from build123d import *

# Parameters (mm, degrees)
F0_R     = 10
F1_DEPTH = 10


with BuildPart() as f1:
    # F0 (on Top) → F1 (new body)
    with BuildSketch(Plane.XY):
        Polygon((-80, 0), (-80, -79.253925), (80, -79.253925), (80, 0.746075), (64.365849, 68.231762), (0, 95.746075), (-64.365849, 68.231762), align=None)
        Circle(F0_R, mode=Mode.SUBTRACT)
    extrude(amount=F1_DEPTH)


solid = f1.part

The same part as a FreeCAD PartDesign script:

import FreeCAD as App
import Part
import Sketcher

V = App.Vector


def add_polygon(sketch, points):
    """Adds a closed chain of lines whose ends are joined by coincident constraints."""
    first, n = sketch.GeometryCount, len(points)
    for a, b in zip(points, points[1:] + points[:1]):
        sketch.addGeometry(Part.LineSegment(App.Vector(*a, 0), App.Vector(*b, 0)), False)
    for i in range(n):
        sketch.addConstraint(Sketcher.Constraint("Coincident", first + i, 2, first + (i + 1) % n, 1))

doc = App.newDocument("Part")
params = doc.addObject("Spreadsheet::Sheet", "Params")
for row, (alias, value) in enumerate([
    ("sketch1_diameter", "20 mm"),
    ("sketch1_width", "160 mm"),
    ("sketch1_height", "80 mm"),
    ("sketch1_length", "70 mm"),
    ("pad1_length", "10 mm"),
], start=1):
    params.set(f"A{row}", alias)
    params.set(f"B{row}", "=" + value)
    params.setAlias(f"B{row}", alias)

body = doc.addObject("PartDesign::Body", "Body")

# Sketch on XY plane
sketch1 = body.newObject("Sketcher::SketchObject", "Sketch")
sketch1.AttachmentSupport = (doc.getObject("XY_Plane"), [""])
sketch1.MapMode = "FlatFace"
add_polygon(sketch1, [(-80, 0), (-80, -79), (80, -79), (80, 1), (64, 68), (0, 96), (-64, 68)])  # lines 0-6
sketch1.addGeometry(Part.Circle(V(0, 0, 0), V(0, 0, 1), 10), False)  # 7
sketch1.addConstraint([
    Sketcher.Constraint("Vertical", 0),
    Sketcher.Constraint("Horizontal", 1),
    Sketcher.Constraint("Vertical", 2),
    Sketcher.Constraint("Coincident", 7, 3, -1, 1),
    Sketcher.Constraint("Symmetric", 3, 2, 5, 2, -2),
    Sketcher.Constraint("PointOnObject", 4, 2, -2),
    Sketcher.Constraint("PointOnObject", 6, 2, -1),
    Sketcher.Constraint("Equal", 5, 6),
    Sketcher.Constraint("Diameter", 7, 20.0),
    Sketcher.Constraint("DistanceX", 1, 1, 1, 2, 160.0),
    Sketcher.Constraint("DistanceY", 2, 1, 2, 2, 80.0),
    Sketcher.Constraint("Distance", 4, 70.0),
    Sketcher.Constraint("DistanceX", 0, 2, -1, 1, 80.0),
    Sketcher.Constraint("DistanceY", 2, 2, 4, 2, 95.0),
    Sketcher.Constraint("DistanceX", 5, 2, 3, 2, 128.731698),
])
sketch1.setExpression("Constraints[15]", "Params.sketch1_diameter")
sketch1.setExpression("Constraints[16]", "Params.sketch1_width")
sketch1.setExpression("Constraints[17]", "Params.sketch1_height")
sketch1.setExpression("Constraints[18]", "Params.sketch1_length")
pad1 = body.newObject("PartDesign::Pad", "Pad")
pad1.Profile = sketch1
pad1.setExpression("Length", "Params.pad1_length")

doc.recompute()
